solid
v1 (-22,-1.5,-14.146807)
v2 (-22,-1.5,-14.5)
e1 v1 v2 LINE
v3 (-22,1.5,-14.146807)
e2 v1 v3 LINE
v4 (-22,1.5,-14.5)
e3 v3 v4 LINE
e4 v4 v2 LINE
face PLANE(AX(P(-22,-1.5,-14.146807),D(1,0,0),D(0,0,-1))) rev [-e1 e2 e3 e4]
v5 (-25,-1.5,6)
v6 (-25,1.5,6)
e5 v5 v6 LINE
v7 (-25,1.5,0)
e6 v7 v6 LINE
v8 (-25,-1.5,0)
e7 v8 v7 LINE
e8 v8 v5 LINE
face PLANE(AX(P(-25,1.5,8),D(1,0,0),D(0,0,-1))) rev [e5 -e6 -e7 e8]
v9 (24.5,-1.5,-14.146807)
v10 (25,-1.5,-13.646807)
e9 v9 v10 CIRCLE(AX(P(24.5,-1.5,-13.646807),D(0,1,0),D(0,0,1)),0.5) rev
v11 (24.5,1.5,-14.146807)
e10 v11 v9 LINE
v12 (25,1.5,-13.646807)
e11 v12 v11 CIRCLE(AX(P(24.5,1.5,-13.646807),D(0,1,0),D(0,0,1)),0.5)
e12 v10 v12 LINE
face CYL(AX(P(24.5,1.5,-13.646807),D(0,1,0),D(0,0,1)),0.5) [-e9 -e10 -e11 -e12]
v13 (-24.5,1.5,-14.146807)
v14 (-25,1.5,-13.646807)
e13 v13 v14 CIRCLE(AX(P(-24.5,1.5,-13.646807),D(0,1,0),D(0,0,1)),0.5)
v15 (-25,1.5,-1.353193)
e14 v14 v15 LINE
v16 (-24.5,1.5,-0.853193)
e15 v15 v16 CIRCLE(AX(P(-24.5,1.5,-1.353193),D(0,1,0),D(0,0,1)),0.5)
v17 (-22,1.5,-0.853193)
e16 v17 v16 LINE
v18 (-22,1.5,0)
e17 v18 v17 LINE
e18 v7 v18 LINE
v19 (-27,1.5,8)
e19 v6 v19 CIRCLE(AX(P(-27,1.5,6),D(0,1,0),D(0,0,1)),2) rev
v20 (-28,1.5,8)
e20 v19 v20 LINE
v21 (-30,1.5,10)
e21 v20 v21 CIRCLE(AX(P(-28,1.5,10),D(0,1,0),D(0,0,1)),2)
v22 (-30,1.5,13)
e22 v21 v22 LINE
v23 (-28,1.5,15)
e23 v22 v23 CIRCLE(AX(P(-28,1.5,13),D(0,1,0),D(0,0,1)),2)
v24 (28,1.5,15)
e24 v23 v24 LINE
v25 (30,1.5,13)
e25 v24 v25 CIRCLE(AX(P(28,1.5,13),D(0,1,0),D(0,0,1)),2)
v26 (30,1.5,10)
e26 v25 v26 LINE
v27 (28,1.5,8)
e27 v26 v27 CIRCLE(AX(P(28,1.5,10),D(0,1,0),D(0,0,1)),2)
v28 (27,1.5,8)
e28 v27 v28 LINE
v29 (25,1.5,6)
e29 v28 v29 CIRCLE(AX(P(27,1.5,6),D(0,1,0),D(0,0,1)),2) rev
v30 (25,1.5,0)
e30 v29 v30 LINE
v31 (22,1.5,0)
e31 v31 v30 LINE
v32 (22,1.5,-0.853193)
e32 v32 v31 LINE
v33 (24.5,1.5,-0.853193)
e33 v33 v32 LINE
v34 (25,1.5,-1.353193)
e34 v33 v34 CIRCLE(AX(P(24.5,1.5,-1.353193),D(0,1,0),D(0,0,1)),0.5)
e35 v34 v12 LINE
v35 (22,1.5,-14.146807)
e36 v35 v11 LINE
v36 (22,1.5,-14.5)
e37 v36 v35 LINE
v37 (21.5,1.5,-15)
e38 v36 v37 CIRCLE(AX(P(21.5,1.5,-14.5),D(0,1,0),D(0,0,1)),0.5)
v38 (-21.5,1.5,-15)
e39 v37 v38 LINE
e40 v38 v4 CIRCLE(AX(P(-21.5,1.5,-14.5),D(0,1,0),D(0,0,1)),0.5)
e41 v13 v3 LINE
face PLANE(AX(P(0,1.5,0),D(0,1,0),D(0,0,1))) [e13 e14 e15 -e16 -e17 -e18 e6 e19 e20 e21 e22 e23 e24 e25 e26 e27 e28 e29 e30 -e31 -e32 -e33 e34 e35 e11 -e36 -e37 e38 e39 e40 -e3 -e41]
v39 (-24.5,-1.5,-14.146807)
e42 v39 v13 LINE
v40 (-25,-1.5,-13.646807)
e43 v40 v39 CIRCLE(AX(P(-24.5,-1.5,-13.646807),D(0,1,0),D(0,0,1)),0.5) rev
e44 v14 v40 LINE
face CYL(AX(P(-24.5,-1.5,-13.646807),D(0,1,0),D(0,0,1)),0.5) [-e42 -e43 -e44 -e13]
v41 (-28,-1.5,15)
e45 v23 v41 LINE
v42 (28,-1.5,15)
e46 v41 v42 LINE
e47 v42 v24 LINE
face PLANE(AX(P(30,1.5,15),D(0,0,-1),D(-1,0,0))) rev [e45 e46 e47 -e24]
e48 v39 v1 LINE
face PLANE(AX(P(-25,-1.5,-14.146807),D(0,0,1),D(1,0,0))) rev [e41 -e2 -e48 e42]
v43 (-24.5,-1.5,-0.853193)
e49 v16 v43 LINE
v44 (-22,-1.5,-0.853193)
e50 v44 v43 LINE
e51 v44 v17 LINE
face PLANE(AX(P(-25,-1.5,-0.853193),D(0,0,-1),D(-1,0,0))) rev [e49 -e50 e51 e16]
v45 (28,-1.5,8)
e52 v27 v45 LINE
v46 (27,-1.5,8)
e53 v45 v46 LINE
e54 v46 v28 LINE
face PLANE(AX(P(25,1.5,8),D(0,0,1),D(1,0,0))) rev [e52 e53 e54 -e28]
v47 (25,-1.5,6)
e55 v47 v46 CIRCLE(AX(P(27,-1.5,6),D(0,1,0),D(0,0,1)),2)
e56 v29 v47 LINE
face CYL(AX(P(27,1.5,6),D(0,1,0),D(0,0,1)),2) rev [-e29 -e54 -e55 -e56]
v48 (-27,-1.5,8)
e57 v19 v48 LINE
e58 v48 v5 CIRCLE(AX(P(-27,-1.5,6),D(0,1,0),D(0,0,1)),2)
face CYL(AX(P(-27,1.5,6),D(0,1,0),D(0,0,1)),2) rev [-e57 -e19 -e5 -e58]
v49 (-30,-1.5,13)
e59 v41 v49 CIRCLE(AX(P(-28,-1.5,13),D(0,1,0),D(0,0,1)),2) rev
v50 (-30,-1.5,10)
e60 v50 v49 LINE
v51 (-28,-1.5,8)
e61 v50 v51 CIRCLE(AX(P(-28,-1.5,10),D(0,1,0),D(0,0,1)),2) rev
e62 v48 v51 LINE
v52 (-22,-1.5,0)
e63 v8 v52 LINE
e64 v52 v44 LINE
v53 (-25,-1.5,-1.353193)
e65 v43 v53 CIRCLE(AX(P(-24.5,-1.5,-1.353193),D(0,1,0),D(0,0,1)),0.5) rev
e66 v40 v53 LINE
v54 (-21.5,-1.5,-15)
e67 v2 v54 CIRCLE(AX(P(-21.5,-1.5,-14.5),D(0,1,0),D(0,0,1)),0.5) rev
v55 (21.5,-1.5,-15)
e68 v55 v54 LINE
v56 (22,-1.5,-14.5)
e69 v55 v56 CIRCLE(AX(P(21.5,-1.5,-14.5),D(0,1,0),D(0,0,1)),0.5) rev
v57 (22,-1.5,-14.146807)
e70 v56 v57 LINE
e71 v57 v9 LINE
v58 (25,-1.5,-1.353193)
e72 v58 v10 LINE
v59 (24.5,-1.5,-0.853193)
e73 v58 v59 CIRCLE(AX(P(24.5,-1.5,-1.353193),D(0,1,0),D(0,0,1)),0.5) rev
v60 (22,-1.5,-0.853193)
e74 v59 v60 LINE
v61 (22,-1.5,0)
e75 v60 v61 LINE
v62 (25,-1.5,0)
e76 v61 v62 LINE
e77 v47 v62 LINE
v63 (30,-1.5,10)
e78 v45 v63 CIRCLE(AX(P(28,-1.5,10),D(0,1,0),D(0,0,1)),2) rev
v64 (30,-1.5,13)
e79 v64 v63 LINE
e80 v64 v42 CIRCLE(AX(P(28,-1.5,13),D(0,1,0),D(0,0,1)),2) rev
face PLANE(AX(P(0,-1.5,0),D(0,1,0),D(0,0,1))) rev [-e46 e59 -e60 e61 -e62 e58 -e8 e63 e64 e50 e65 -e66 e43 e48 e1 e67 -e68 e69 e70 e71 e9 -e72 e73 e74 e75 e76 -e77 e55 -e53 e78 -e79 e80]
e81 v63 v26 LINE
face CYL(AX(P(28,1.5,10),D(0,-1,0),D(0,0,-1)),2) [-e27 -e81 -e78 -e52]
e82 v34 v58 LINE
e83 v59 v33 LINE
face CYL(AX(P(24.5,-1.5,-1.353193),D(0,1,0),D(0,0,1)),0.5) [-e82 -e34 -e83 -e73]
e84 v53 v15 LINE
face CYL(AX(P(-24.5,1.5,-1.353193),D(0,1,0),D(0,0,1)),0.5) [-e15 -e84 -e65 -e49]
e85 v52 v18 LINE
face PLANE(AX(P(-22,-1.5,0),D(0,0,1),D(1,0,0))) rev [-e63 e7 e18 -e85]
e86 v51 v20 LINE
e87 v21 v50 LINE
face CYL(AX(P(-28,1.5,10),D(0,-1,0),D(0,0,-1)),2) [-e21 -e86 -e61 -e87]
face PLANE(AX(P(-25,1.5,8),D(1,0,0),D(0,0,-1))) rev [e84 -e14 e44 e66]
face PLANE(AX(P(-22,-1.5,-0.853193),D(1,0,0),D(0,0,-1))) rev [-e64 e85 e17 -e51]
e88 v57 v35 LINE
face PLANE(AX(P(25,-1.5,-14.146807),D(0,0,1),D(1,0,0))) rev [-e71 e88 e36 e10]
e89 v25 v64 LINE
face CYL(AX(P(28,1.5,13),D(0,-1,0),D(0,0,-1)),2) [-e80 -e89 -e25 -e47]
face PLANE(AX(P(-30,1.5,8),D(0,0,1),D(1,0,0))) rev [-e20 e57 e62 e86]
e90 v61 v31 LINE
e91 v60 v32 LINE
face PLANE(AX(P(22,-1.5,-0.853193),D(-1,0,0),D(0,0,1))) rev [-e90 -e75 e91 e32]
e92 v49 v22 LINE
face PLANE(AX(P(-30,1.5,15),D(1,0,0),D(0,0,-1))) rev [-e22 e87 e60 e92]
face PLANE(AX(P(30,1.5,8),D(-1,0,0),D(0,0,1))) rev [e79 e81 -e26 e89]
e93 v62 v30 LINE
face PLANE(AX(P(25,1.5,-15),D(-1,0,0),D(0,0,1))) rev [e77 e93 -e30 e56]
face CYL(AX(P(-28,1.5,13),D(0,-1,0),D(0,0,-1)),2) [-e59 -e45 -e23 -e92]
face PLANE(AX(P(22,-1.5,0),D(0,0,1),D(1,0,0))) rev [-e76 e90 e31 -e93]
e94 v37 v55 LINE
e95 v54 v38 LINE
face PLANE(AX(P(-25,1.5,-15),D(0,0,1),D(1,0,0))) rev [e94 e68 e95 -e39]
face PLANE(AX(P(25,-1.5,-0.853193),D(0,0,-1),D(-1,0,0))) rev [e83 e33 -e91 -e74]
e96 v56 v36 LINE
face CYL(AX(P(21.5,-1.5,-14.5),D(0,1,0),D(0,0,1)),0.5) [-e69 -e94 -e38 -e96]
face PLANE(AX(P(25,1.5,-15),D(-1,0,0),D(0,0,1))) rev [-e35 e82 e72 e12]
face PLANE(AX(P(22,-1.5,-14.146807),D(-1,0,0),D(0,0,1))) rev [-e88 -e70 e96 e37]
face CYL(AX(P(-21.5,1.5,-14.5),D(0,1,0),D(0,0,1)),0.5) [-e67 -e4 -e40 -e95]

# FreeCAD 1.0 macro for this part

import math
import FreeCAD as App
import Part
import Sketcher
Q = App.Units.Quantity


def edges_at(feature, points):
    """Names of the edges that pass closest to the given points."""
    edges = feature.Shape.Edges
    near = lambda p: min(range(len(edges)), key=lambda i: edges[i].distToShape(Part.Vertex(*p))[0])
    return sorted({f"Edge{near(p) + 1}" for p in points})

doc = App.newDocument("Part")
body = doc.addObject("PartDesign::Body", "Body")

sketch1 = doc.addObject("Sketcher::SketchObject", "Sketch")
body.addObject(sketch1)
sketch1.AttachmentSupport = (doc.XZ_Plane, [""])
sketch1.MapMode = "FlatFace"
sketch1.addGeometry(Part.LineSegment(App.Vector(-30, 15, 0), App.Vector(30, 15, 0)), False)
sketch1.addGeometry(Part.LineSegment(App.Vector(30, 15, 0), App.Vector(30, 8, 0)), False)
sketch1.addGeometry(Part.LineSegment(App.Vector(30, 8, 0), App.Vector(25, 8, 0)), False)
sketch1.addGeometry(Part.LineSegment(App.Vector(25, 8, 0), App.Vector(25, -15, 0)), False)
sketch1.addGeometry(Part.LineSegment(App.Vector(25, -15, 0), App.Vector(-25, -15, 0)), False)
sketch1.addGeometry(Part.LineSegment(App.Vector(-25, -15, 0), App.Vector(-25, 8, 0)), False)
sketch1.addGeometry(Part.LineSegment(App.Vector(-25, 8, 0), App.Vector(-30, 8, 0)), False)
sketch1.addGeometry(Part.LineSegment(App.Vector(-30, 8, 0), App.Vector(-30, 15, 0)), False)
sketch1.addConstraint(Sketcher.Constraint("Coincident", 0, 2, 1, 1))
sketch1.addConstraint(Sketcher.Constraint("Coincident", 1, 2, 2, 1))
sketch1.addConstraint(Sketcher.Constraint("Coincident", 2, 2, 3, 1))
sketch1.addConstraint(Sketcher.Constraint("Coincident", 3, 2, 4, 1))
sketch1.addConstraint(Sketcher.Constraint("Coincident", 4, 2, 5, 1))
sketch1.addConstraint(Sketcher.Constraint("Coincident", 5, 2, 6, 1))
sketch1.addConstraint(Sketcher.Constraint("Coincident", 6, 2, 7, 1))
sketch1.addConstraint(Sketcher.Constraint("Coincident", 7, 2, 0, 1))
sketch1.addConstraint(Sketcher.Constraint("Horizontal", 0))
sketch1.addConstraint(Sketcher.Constraint("Vertical", 1))
sketch1.addConstraint(Sketcher.Constraint("Horizontal", 2))
sketch1.addConstraint(Sketcher.Constraint("Vertical", 3))
sketch1.addConstraint(Sketcher.Constraint("Horizontal", 4))
sketch1.addConstraint(Sketcher.Constraint("Vertical", 5))
sketch1.addConstraint(Sketcher.Constraint("Horizontal", 6))
sketch1.addConstraint(Sketcher.Constraint("Vertical", 7))
sketch1.addConstraint(Sketcher.Constraint("Symmetric", 2, 2, 5, 2, -2))
sketch1.addConstraint(Sketcher.Constraint("Equal", 2, 6))
sketch1.addConstraint(Sketcher.Constraint("DistanceX", 0, 1, 0, 2, Q("60 mm")))
sketch1.addConstraint(Sketcher.Constraint("DistanceX", 2, 2, 2, 1, Q("5 mm")))
sketch1.addConstraint(Sketcher.Constraint("DistanceY", 1, 2, 1, 1, Q("7 mm")))
sketch1.addConstraint(Sketcher.Constraint("DistanceY", 3, 2, 3, 1, Q("23 mm")))
sketch1.addConstraint(Sketcher.Constraint("DistanceY", -1, 1, 0, 2, Q("15 mm")))
pad1 = doc.addObject("PartDesign::Pad", "Pad")
body.addObject(pad1)
pad1.Profile = sketch1
pad1.Length = 3
pad1.Midplane = True

sketch2 = doc.addObject("Sketcher::SketchObject", "Sketch001")
body.addObject(sketch2)
sketch2.AttachmentSupport = (doc.XZ_Plane, [""])
sketch2.MapMode = "FlatFace"
sketch2.AttachmentOffset = App.Placement(App.Vector(0, 0, -1.5), App.Rotation())
sketch2.addGeometry(Part.LineSegment(App.Vector(-25, -14.146807, 0), App.Vector(-22, -14.146807, 0)), False)
sketch2.addGeometry(Part.LineSegment(App.Vector(-22, -14.146807, 0), App.Vector(-22, -15, 0)), False)
sketch2.addGeometry(Part.LineSegment(App.Vector(-22, -15, 0), App.Vector(-25, -15, 0)), False)
sketch2.addGeometry(Part.ArcOfCircle(Part.Circle(App.Vector(-22.216118, -7.5, 0), App.Vector(0, 0, 1), 8), math.radians(110.364135), math.radians(249.635865)), False)
sketch2.addGeometry(Part.LineSegment(App.Vector(-25, 0, 0), App.Vector(-22, 0, 0)), False)
sketch2.addGeometry(Part.LineSegment(App.Vector(-22, 0, 0), App.Vector(-22, -0.853193, 0)), False)
sketch2.addGeometry(Part.LineSegment(App.Vector(-22, -0.853193, 0), App.Vector(-25, -0.853193, 0)), False)
sketch2.addGeometry(Part.ArcOfCircle(Part.Circle(App.Vector(-22.216118, -7.5, 0), App.Vector(0, 0, 1), 7.20625), math.radians(112.725399), math.radians(247.274601)), False)
sketch2.addGeometry(Part.LineSegment(App.Vector(22, -0.853193, 0), App.Vector(22, 0, 0)), False)
sketch2.addGeometry(Part.LineSegment(App.Vector(22, 0, 0), App.Vector(25, 0, 0)), False)
sketch2.addGeometry(Part.ArcOfCircle(Part.Circle(App.Vector(22.216118, -7.5, 0), App.Vector(0, 0, 1), 8), math.radians(-69.635865), math.radians(69.635865)), False)
sketch2.addGeometry(Part.LineSegment(App.Vector(25, -15, 0), App.Vector(22, -15, 0)), False)
sketch2.addGeometry(Part.LineSegment(App.Vector(22, -15, 0), App.Vector(22, -14.146807, 0)), False)
sketch2.addGeometry(Part.LineSegment(App.Vector(22, -14.146807, 0), App.Vector(25, -14.146807, 0)), False)
sketch2.addGeometry(Part.ArcOfCircle(Part.Circle(App.Vector(22.216118, -7.5, 0), App.Vector(0, 0, 1), 7.20625), math.radians(-67.274601), math.radians(67.274601)), False)
sketch2.addGeometry(Part.LineSegment(App.Vector(25, -0.853193, 0), App.Vector(22, -0.853193, 0)), False)
sketch2.addConstraint(Sketcher.Constraint("Coincident", 0, 2, 1, 1))
sketch2.addConstraint(Sketcher.Constraint("Coincident", 1, 2, 2, 1))
sketch2.addConstraint(Sketcher.Constraint("Coincident", 2, 2, 3, 2))
sketch2.addConstraint(Sketcher.Constraint("Coincident", 3, 1, 4, 1))
sketch2.addConstraint(Sketcher.Constraint("Coincident", 4, 2, 5, 1))
sketch2.addConstraint(Sketcher.Constraint("Coincident", 5, 2, 6, 1))
sketch2.addConstraint(Sketcher.Constraint("Coincident", 6, 2, 7, 1))
sketch2.addConstraint(Sketcher.Constraint("Coincident", 7, 2, 0, 1))
sketch2.addConstraint(Sketcher.Constraint("Coincident", 8, 2, 9, 1))
sketch2.addConstraint(Sketcher.Constraint("Coincident", 9, 2, 10, 2))
sketch2.addConstraint(Sketcher.Constraint("Coincident", 10, 1, 11, 1))
sketch2.addConstraint(Sketcher.Constraint("Coincident", 11, 2, 12, 1))
sketch2.addConstraint(Sketcher.Constraint("Coincident", 12, 2, 13, 1))
sketch2.addConstraint(Sketcher.Constraint("Coincident", 13, 2, 14, 1))
sketch2.addConstraint(Sketcher.Constraint("Coincident", 14, 2, 15, 1))
sketch2.addConstraint(Sketcher.Constraint("Coincident", 15, 2, 8, 1))
sketch2.addConstraint(Sketcher.Constraint("Horizontal", 0))
sketch2.addConstraint(Sketcher.Constraint("Vertical", 1))
sketch2.addConstraint(Sketcher.Constraint("Horizontal", 2))
sketch2.addConstraint(Sketcher.Constraint("Horizontal", 4))
sketch2.addConstraint(Sketcher.Constraint("Vertical", 5))
sketch2.addConstraint(Sketcher.Constraint("Horizontal", 6))
sketch2.addConstraint(Sketcher.Constraint("Vertical", 8))
sketch2.addConstraint(Sketcher.Constraint("Horizontal", 9))
sketch2.addConstraint(Sketcher.Constraint("Horizontal", 11))
sketch2.addConstraint(Sketcher.Constraint("Vertical", 12))
sketch2.addConstraint(Sketcher.Constraint("Horizontal", 13))
sketch2.addConstraint(Sketcher.Constraint("Horizontal", 15))
sketch2.addConstraint(Sketcher.Constraint("Coincident", 7, 3, 3, 3))
sketch2.addConstraint(Sketcher.Constraint("Coincident", 14, 3, 10, 3))
sketch2.addConstraint(Sketcher.Constraint("Equal", 3, 10))
sketch2.addConstraint(Sketcher.Constraint("Equal", 7, 14))
sketch2.addConstraint(Sketcher.Constraint("Symmetric", 4, 2, 8, 2, -1, 1))
sketch2.addConstraint(Sketcher.Constraint("Symmetric", 3, 3, 10, 3, -2))
sketch2.addConstraint(Sketcher.Constraint("Symmetric", 1, 2, 11, 2, -2))
sketch2.addConstraint(Sketcher.Constraint("PointOnObject", 3, 1, -1))
sketch2.addConstraint(Sketcher.Constraint("Horizontal", 7, 2, 12, 2))
sketch2.addConstraint(Sketcher.Constraint("Horizontal", 6, 2, 14, 2))
sketch2.addConstraint(Sketcher.Constraint("Vertical", 2, 2, 3, 1))
sketch2.addConstraint(Sketcher.Constraint("Vertical", 1, 2, 4, 2))
sketch2.addConstraint(Sketcher.Constraint("Vertical", 3, 1, 6, 2))
sketch2.addConstraint(Sketcher.Constraint("Vertical", 6, 2, 7, 2))
sketch2.addConstraint(Sketcher.Constraint("Radius", 3, Q("8 mm")))
sketch2.addConstraint(Sketcher.Constraint("DistanceX", 0, 1, 0, 2, Q("3 mm")))
sketch2.addConstraint(Sketcher.Constraint("DistanceX", 0, 2, -1, 1, Q("22 mm")))
sketch2.addConstraint(Sketcher.Constraint("DistanceY", 1, 2, -1, 1, Q("15 mm")))
sketch2.addConstraint(Sketcher.Constraint("Radius", 7, Q("7.20625 mm")))
pocket1 = doc.addObject("PartDesign::Pocket", "Pocket")
body.addObject(pocket1)
pocket1.Profile = sketch2
pocket1.Type = "ThroughAll"
pocket1.Midplane = True
doc.recompute()

fillet = doc.addObject("PartDesign::Fillet", "Fillet")
body.addObject(fillet)
fillet.Base = (pocket1, edges_at(pocket1, [
    (25, 0, 8),
    (30, 0, 8),
    (30, 0, 15),
    (-30, 0, 15),
    (-30, 0, 8),
    (-25, 0, 8),
]))
fillet.Radius = 2
doc.recompute()

fillet2 = doc.addObject("PartDesign::Fillet", "Fillet001")
body.addObject(fillet2)
fillet2.Base = (fillet, edges_at(fillet, [
    (-25, 0, -14.147),
    (-25, 0, -0.853),
    (25, 0, -14.147),
    (25, 0, -0.853),
    (-22, 0, -15),
    (22, 0, -15),
]))
fillet2.Radius = 0.5

doc.recompute()
